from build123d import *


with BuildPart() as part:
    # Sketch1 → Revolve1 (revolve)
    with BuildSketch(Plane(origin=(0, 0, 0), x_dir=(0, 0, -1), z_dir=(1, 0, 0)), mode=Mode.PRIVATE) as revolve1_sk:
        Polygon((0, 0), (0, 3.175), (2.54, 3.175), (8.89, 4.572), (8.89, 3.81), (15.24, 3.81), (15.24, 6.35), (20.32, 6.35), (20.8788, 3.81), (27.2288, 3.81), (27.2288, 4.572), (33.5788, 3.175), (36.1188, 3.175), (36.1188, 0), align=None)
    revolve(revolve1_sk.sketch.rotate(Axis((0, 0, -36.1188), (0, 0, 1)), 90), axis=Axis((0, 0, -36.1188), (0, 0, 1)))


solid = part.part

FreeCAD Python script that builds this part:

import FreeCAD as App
import Part
import Sketcher

V = App.Vector
Q = App.Units.Quantity


def add_polygon(sketch, points):
    """Adds a closed chain of lines whose ends are joined by coincident constraints."""
    first, n = sketch.GeometryCount, len(points)
    for a, b in zip(points, points[1:] + points[:1]):
        sketch.addGeometry(Part.LineSegment(App.Vector(*a, 0), App.Vector(*b, 0)), False)
    for i in range(n):
        sketch.addConstraint(Sketcher.Constraint("Coincident", first + i, 2, first + (i + 1) % n, 1))

doc = App.newDocument("Part")
body = doc.addObject("PartDesign::Body", "Body")

# Sketch on YZ plane
sketch1 = body.newObject("Sketcher::SketchObject", "Sketch")
sketch1.AttachmentSupport = (doc.getObject("YZ_Plane"), [""])
sketch1.MapMode = "FlatFace"
add_polygon(sketch1, [(3.175, 0), (0, 0), (0, -36.1188), (3.175, -36.1188), (3.175, -33.5788), (4.572, -27.2288), (3.81, -27.2288), (3.81, -20.8788), (6.35, -20.32), (6.35, -15.24), (3.81, -15.24), (3.81, -8.89), (4.572, -8.89), (3.175, -2.54)])  # lines 0-13
sketch1.addConstraint([
    Sketcher.Constraint("Horizontal", 0),
    Sketcher.Constraint("Vertical", 1),
    Sketcher.Constraint("Horizontal", 2),
    Sketcher.Constraint("Vertical", 3),
    Sketcher.Constraint("Horizontal", 5),
    Sketcher.Constraint("Vertical", 6),
    Sketcher.Constraint("Vertical", 8),
    Sketcher.Constraint("Horizontal", 9),
    Sketcher.Constraint("Vertical", 10),
    Sketcher.Constraint("Horizontal", 11),
    Sketcher.Constraint("Vertical", 13),
    Sketcher.Constraint("Coincident", 0, 2, -1, 1),
    Sketcher.Constraint("Perpendicular", 7, 12),
    Sketcher.Constraint("Vertical", 6, 2, 9, 2),
    Sketcher.Constraint("Vertical", 4, 2, 11, 2),
    Sketcher.Constraint("Vertical", 3, 2, 12, 2),
    Sketcher.Constraint("Equal", 9, 3),
    Sketcher.Constraint("Equal", 6, 10),
    Sketcher.Constraint("Equal", 3, 13),
    Sketcher.Constraint("Equal", 4, 12),
    Sketcher.Constraint("DistanceX", 9, 2, 9, 1, Q("0.1 in")),
    Sketcher.Constraint("DistanceY", 8, 1, 8, 2, Q("0.2 in")),
    Sketcher.Constraint("DistanceX", 5, 2, 5, 1, Q("0.03 in")),
    Sketcher.Constraint("DistanceY", 6, 1, 6, 2, Q("0.25 in")),
    Sketcher.Constraint("DistanceY", 7, 2, -1, 1, Q("0.8 in")),
    Sketcher.Constraint("DistanceX", 0, 2, 0, 1, Q("0.125 in")),
    Sketcher.Constraint("DistanceY", 1, 2, 1, 1, Q("1.422 in")),
])
revolution = body.newObject("PartDesign::Revolution", "Revolution")
revolution.Profile = sketch1
revolution.ReferenceAxis = (sketch1, ["V_Axis"])
revolution.Angle = 360

doc.recompute()
